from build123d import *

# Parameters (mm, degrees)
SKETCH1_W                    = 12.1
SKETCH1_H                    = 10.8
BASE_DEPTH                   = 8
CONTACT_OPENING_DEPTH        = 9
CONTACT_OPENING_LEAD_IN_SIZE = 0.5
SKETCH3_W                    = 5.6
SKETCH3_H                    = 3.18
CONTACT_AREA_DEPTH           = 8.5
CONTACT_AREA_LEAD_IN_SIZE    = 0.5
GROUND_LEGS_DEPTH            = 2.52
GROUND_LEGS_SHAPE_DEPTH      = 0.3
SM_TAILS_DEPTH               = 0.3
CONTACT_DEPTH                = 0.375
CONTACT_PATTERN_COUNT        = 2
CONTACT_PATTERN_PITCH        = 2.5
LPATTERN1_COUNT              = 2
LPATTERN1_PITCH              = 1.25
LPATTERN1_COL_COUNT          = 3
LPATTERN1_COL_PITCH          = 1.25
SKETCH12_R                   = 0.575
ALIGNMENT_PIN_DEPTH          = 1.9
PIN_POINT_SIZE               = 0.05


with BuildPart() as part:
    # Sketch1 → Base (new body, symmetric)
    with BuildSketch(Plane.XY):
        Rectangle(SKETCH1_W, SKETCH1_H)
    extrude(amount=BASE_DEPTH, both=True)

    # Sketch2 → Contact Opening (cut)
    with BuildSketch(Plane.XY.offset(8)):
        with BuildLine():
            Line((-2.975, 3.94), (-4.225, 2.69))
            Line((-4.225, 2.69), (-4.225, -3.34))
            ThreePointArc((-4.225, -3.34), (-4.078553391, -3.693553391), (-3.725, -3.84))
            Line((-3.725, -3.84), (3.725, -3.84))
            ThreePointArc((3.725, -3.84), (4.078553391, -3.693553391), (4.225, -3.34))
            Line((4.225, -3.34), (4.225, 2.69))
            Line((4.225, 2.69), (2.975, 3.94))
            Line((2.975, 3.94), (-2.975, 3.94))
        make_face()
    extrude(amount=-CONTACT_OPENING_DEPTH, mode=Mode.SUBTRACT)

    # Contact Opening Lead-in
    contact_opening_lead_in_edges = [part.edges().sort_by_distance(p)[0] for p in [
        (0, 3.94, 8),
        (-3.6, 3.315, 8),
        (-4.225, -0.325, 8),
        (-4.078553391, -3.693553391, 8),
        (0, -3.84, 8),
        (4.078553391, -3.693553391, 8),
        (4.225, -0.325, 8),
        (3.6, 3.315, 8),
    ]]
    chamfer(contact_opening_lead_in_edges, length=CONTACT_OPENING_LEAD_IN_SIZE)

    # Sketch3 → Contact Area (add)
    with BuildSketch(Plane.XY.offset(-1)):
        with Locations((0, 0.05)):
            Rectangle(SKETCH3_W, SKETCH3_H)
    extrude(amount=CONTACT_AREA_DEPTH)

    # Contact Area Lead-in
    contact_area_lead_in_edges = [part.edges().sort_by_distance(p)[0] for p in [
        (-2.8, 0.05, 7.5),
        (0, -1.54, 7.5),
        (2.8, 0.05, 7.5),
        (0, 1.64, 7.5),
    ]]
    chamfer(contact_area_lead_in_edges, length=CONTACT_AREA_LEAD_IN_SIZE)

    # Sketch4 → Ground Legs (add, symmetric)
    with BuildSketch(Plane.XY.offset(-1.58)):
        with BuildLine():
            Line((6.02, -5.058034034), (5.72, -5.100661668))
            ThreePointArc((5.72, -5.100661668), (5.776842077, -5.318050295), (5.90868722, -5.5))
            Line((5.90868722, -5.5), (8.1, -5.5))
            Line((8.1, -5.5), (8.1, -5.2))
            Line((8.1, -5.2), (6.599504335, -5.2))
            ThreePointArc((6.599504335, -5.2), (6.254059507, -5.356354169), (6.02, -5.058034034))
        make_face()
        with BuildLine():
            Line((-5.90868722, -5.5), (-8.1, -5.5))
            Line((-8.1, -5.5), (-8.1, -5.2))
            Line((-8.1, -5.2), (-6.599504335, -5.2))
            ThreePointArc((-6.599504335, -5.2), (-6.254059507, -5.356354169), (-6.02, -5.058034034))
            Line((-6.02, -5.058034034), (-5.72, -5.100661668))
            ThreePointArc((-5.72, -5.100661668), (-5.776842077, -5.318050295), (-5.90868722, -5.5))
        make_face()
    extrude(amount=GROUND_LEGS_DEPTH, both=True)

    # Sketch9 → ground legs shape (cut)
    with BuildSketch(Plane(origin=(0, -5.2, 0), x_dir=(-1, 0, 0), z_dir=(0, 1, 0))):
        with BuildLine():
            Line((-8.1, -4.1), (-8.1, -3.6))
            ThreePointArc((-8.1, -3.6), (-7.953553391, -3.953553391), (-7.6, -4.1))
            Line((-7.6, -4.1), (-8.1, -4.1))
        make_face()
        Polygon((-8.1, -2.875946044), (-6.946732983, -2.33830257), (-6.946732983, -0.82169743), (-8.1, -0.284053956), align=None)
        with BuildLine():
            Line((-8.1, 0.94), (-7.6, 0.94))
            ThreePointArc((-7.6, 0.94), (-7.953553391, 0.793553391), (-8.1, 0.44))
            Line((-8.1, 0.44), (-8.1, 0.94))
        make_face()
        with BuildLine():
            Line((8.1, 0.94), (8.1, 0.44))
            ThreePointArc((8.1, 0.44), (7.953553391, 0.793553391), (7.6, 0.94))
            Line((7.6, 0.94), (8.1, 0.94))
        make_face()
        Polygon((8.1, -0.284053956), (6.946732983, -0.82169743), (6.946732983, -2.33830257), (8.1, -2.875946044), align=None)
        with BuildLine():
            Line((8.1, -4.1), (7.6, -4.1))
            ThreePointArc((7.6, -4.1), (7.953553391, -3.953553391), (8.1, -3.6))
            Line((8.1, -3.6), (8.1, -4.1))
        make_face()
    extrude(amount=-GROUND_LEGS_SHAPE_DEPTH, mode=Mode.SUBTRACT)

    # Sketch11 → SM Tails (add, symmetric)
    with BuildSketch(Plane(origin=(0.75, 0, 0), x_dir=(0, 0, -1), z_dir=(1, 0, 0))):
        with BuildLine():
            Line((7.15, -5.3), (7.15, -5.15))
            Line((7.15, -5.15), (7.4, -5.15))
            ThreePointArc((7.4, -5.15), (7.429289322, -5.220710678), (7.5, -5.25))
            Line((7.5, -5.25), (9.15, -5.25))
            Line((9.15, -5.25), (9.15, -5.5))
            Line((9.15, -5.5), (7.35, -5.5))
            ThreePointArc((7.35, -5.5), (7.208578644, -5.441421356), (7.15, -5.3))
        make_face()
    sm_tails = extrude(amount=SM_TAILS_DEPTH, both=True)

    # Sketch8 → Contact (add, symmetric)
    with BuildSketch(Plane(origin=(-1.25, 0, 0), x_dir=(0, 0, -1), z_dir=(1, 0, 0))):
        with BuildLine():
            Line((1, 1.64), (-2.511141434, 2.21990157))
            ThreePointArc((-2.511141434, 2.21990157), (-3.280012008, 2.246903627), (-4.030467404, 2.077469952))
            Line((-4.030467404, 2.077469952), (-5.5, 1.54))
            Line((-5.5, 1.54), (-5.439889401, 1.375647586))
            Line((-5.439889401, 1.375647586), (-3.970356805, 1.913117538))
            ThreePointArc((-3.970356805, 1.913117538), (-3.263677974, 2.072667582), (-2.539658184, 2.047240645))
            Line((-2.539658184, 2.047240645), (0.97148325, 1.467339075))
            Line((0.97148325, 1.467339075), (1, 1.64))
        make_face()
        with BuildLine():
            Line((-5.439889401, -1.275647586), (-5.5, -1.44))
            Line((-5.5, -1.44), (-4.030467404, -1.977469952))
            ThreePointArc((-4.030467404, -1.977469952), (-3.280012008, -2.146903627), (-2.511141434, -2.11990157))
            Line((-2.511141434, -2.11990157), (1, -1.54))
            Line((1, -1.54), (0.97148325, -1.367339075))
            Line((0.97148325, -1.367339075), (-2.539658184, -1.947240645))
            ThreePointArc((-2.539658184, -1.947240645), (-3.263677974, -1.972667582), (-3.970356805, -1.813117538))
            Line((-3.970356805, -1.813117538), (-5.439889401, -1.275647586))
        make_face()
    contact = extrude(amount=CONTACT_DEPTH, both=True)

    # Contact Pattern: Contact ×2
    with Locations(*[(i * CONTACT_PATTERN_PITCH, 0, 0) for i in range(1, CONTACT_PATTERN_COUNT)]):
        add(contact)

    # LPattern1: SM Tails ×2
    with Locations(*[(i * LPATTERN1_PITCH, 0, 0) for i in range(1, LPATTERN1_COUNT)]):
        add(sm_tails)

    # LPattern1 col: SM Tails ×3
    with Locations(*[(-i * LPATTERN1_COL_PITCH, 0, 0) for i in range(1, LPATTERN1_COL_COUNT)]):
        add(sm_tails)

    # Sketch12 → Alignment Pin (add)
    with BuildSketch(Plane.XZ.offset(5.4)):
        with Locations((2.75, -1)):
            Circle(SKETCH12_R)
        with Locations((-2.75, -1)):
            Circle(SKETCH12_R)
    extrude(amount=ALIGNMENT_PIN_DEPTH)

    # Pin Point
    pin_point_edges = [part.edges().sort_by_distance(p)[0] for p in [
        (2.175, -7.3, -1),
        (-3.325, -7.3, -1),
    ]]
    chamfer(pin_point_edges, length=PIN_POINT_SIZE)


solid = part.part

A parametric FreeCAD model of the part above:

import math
import FreeCAD as App
import Part
import Sketcher
Q = App.Units.Quantity


def edges_at(feature, points):
    """Names of the edges that pass closest to the given points."""
    edges = feature.Shape.Edges
    near = lambda p: min(range(len(edges)), key=lambda i: edges[i].distToShape(Part.Vertex(*p))[0])
    return sorted({f"Edge{near(p) + 1}" for p in points})

doc = App.newDocument("Part")
body = doc.addObject("PartDesign::Body", "Body")

# Sketch on XY plane
sketch1 = body.newObject("Sketcher::SketchObject", "Sketch")
sketch1.AttachmentSupport = (doc.getObject("XY_Plane"), [""])
sketch1.MapMode = "FlatFace"
sketch1.addGeometry([
    Part.LineSegment(App.Vector(-6.05, 5.4, 0), App.Vector(-6.05, -5.4, 0)),
    Part.LineSegment(App.Vector(-6.05, -5.4, 0), App.Vector(6.05, -5.4, 0)),
    Part.LineSegment(App.Vector(6.05, -5.4, 0), App.Vector(6.05, 5.4, 0)),
    Part.LineSegment(App.Vector(6.05, 5.4, 0), App.Vector(-6.05, 5.4, 0)),
], False)
sketch1.addConstraint([
    Sketcher.Constraint("Coincident", 0, 2, 1, 1),
    Sketcher.Constraint("Coincident", 1, 2, 2, 1),
    Sketcher.Constraint("Coincident", 2, 2, 3, 1),
    Sketcher.Constraint("Coincident", 3, 2, 0, 1),
    Sketcher.Constraint("Vertical", 0),
    Sketcher.Constraint("Horizontal", 1),
    Sketcher.Constraint("Vertical", 2),
    Sketcher.Constraint("Horizontal", 3),
    Sketcher.Constraint("Symmetric", 0, 2, 2, 2, -1, 1),
    Sketcher.Constraint("DistanceX", 1, 1, 1, 2, Q("12.1 mm")),
    Sketcher.Constraint("DistanceY", 0, 2, 0, 1, Q("10.8 mm")),
])
pad1 = body.newObject("PartDesign::Pad", "Pad")
pad1.Profile = sketch1
pad1.Length = 16
pad1.Midplane = True

# Sketch on XY plane
sketch2 = body.newObject("Sketcher::SketchObject", "Sketch001")
sketch2.AttachmentSupport = (doc.getObject("XY_Plane"), [""])
sketch2.MapMode = "FlatFace"
sketch2.AttachmentOffset = App.Placement(App.Vector(0, 0, 8), App.Rotation())
sketch2.addGeometry([
    Part.LineSegment(App.Vector(-2.975, 3.94, 0), App.Vector(-4.225, 2.69, 0)),  # 0
    Part.LineSegment(App.Vector(-4.225, 2.69, 0), App.Vector(-4.225, -3.34, 0)),  # 1
    Part.ArcOfCircle(Part.Circle(App.Vector(-3.725, -3.34, 0), App.Vector(0, 0, 1), 0.5), math.radians(180), math.radians(270)),  # 2
    Part.LineSegment(App.Vector(-3.725, -3.84, 0), App.Vector(3.725, -3.84, 0)),  # 3
    Part.ArcOfCircle(Part.Circle(App.Vector(3.725, -3.34, 0), App.Vector(0, 0, 1), 0.5), math.radians(-90), math.radians(0)),  # 4
    Part.LineSegment(App.Vector(4.225, -3.34, 0), App.Vector(4.225, 2.69, 0)),  # 5
    Part.LineSegment(App.Vector(4.225, 2.69, 0), App.Vector(2.975, 3.94, 0)),  # 6
    Part.LineSegment(App.Vector(2.975, 3.94, 0), App.Vector(-2.975, 3.94, 0)),  # 7
], False)
sketch2.addConstraint([
    Sketcher.Constraint("Coincident", 0, 2, 1, 1),
    Sketcher.Constraint("Tangent", 1, 2, 2, 1),
    Sketcher.Constraint("Tangent", 2, 2, 3, 1),
    Sketcher.Constraint("Tangent", 3, 2, 4, 1),
    Sketcher.Constraint("Tangent", 4, 2, 5, 1),
    Sketcher.Constraint("Coincident", 5, 2, 6, 1),
    Sketcher.Constraint("Coincident", 6, 2, 7, 1),
    Sketcher.Constraint("Coincident", 7, 2, 0, 1),
    Sketcher.Constraint("Vertical", 1),
    Sketcher.Constraint("Horizontal", 3),
    Sketcher.Constraint("Vertical", 5),
    Sketcher.Constraint("Horizontal", 7),
    Sketcher.Constraint("Equal", 2, 4),
    Sketcher.Constraint("Symmetric", 0, 2, 5, 2, -2),
    Sketcher.Constraint("Perpendicular", 0, 6),
    Sketcher.Constraint("Equal", 0, 6),
    Sketcher.Constraint("Radius", 2, Q("0.5 mm")),
    Sketcher.Constraint("DistanceX", 3, 1, 3, 2, Q("7.45 mm")),
    Sketcher.Constraint("DistanceX", 7, 2, 7, 1, Q("5.95 mm")),
    Sketcher.Constraint("DistanceY", 1, 2, 1, 1, Q("6.03 mm")),
    Sketcher.Constraint("DistanceY", 2, 3, -1, 1, Q("3.34 mm")),
])
pocket1 = body.newObject("PartDesign::Pocket", "Pocket")
pocket1.Profile = sketch2
pocket1.Length = 9
doc.recompute()

chamfer = body.newObject("PartDesign::Chamfer", "Chamfer")
chamfer.Base = (pocket1, edges_at(pocket1, [
    (0, 3.94, 8),
    (-3.6, 3.315, 8),
    (-4.225, -0.325, 8),
    (-4.079, -3.694, 8),
    (0, -3.84, 8),
    (4.079, -3.694, 8),
    (4.225, -0.325, 8),
    (3.6, 3.315, 8),
]))
chamfer.Size = 0.5

# Sketch on XY plane
sketch3 = body.newObject("Sketcher::SketchObject", "Sketch002")
sketch3.AttachmentSupport = (doc.getObject("XY_Plane"), [""])
sketch3.MapMode = "FlatFace"
sketch3.AttachmentOffset = App.Placement(App.Vector(0, 0, -1), App.Rotation())
sketch3.addGeometry([
    Part.LineSegment(App.Vector(-2.8, 1.64, 0), App.Vector(-2.8, -1.54, 0)),
    Part.LineSegment(App.Vector(-2.8, -1.54, 0), App.Vector(2.8, -1.54, 0)),
    Part.LineSegment(App.Vector(2.8, -1.54, 0), App.Vector(2.8, 1.64, 0)),
    Part.LineSegment(App.Vector(2.8, 1.64, 0), App.Vector(-2.8, 1.64, 0)),
], False)
sketch3.addConstraint([
    Sketcher.Constraint("Coincident", 0, 2, 1, 1),
    Sketcher.Constraint("Coincident", 1, 2, 2, 1),
    Sketcher.Constraint("Coincident", 2, 2, 3, 1),
    Sketcher.Constraint("Coincident", 3, 2, 0, 1),
    Sketcher.Constraint("Vertical", 0),
    Sketcher.Constraint("Horizontal", 1),
    Sketcher.Constraint("Vertical", 2),
    Sketcher.Constraint("Horizontal", 3),
    Sketcher.Constraint("DistanceX", 1, 1, 1, 2, Q("5.6 mm")),
    Sketcher.Constraint("DistanceY", 0, 2, 0, 1, Q("3.18 mm")),
    Sketcher.Constraint("DistanceX", 0, 2, -1, 1, Q("2.8 mm")),
    Sketcher.Constraint("DistanceY", 0, 2, -1, 1, Q("1.54 mm")),
])
pad2 = body.newObject("PartDesign::Pad", "Pad001")
pad2.Profile = sketch3
pad2.Length = 8.5
doc.recompute()

chamfer2 = body.newObject("PartDesign::Chamfer", "Chamfer001")
chamfer2.Base = (pad2, edges_at(pad2, [
    (-2.8, 0.05, 7.5),
    (0, -1.54, 7.5),
    (2.8, 0.05, 7.5),
    (0, 1.64, 7.5),
]))
chamfer2.Size = 0.5

# Sketch on XY plane
sketch4 = body.newObject("Sketcher::SketchObject", "Sketch003")
sketch4.AttachmentSupport = (doc.getObject("XY_Plane"), [""])
sketch4.MapMode = "FlatFace"
sketch4.AttachmentOffset = App.Placement(App.Vector(0, 0, -1.58), App.Rotation())
sketch4.addGeometry([
    Part.LineSegment(App.Vector(6.02, -5.058034, 0), App.Vector(5.72, -5.100662, 0)),  # 0
    Part.ArcOfCircle(Part.Circle(App.Vector(6.327141, -5.058034, 0), App.Vector(0, 0, 1), 0.608636), math.radians(-175.983832), math.radians(-133.434733)),  # 1
    Part.LineSegment(App.Vector(5.908687, -5.5, 0), App.Vector(8.1, -5.5, 0)),  # 2
    Part.LineSegment(App.Vector(8.1, -5.5, 0), App.Vector(8.1, -5.2, 0)),  # 3
    Part.LineSegment(App.Vector(8.1, -5.2, 0), App.Vector(6.599504, -5.2, 0)),  # 4
    Part.ArcOfCircle(Part.Circle(App.Vector(6.327141, -5.058034, 0), App.Vector(0, 0, 1), 0.307141), math.radians(180), math.radians(332.469749)),  # 5
    Part.LineSegment(App.Vector(-8.1, -5.5, 0), App.Vector(-5.908687, -5.5, 0)),  # 6
    Part.ArcOfCircle(Part.Circle(App.Vector(-6.327141, -5.058034, 0), App.Vector(0, 0, 1), 0.608636), math.radians(-46.565267), math.radians(-4.016168)),  # 7
    Part.LineSegment(App.Vector(-5.72, -5.100662, 0), App.Vector(-6.02, -5.058034, 0)),  # 8
    Part.ArcOfCircle(Part.Circle(App.Vector(-6.327141, -5.058034, 0), App.Vector(0, 0, 1), 0.307141), math.radians(-152.469749), math.radians(0)),  # 9
    Part.LineSegment(App.Vector(-6.599504, -5.2, 0), App.Vector(-8.1, -5.2, 0)),  # 10
    Part.LineSegment(App.Vector(-8.1, -5.2, 0), App.Vector(-8.1, -5.5, 0)),  # 11
], False)
sketch4.addConstraint([
    Sketcher.Constraint("Coincident", 0, 2, 1, 1),
    Sketcher.Constraint("Coincident", 1, 2, 2, 1),
    Sketcher.Constraint("Coincident", 2, 2, 3, 1),
    Sketcher.Constraint("Coincident", 3, 2, 4, 1),
    Sketcher.Constraint("Coincident", 4, 2, 5, 2),
    Sketcher.Constraint("Coincident", 5, 1, 0, 1),
    Sketcher.Constraint("Coincident", 6, 2, 7, 1),
    Sketcher.Constraint("Coincident", 7, 2, 8, 1),
    Sketcher.Constraint("Coincident", 8, 2, 9, 2),
    Sketcher.Constraint("Coincident", 9, 1, 10, 1),
    Sketcher.Constraint("Coincident", 10, 2, 11, 1),
    Sketcher.Constraint("Coincident", 11, 2, 6, 1),
    Sketcher.Constraint("Horizontal", 2),
    Sketcher.Constraint("Vertical", 3),
    Sketcher.Constraint("Horizontal", 4),
    Sketcher.Constraint("Horizontal", 6),
    Sketcher.Constraint("Horizontal", 10),
    Sketcher.Constraint("Vertical", 11),
    Sketcher.Constraint("Coincident", 5, 3, 1, 3),
    Sketcher.Constraint("Coincident", 9, 3, 7, 3),
    Sketcher.Constraint("Equal", 1, 7),
    Sketcher.Constraint("Equal", 5, 9),
    Sketcher.Constraint("Symmetric", 1, 3, 7, 3, -2),
    Sketcher.Constraint("Symmetric", 3, 2, 10, 2, -2),
    Sketcher.Constraint("Horizontal", 9, 3, 5, 1),
    Sketcher.Constraint("Horizontal", 2, 2, 6, 2),
    Sketcher.Constraint("Horizontal", 0, 2, 7, 2),
    Sketcher.Constraint("Horizontal", 5, 1, 8, 2),
    Sketcher.Constraint("DistanceY", 3, 1, 3, 2, Q("0.3 mm")),
    Sketcher.Constraint("DistanceY", 1, 2, -1, 1, Q("5.5 mm")),
    Sketcher.Constraint("DistanceX", -1, 1, 2, 2, Q("8.1 mm")),
    Sketcher.Constraint("DistanceX", 0, 2, 5, 1, Q("0.3 mm")),
    Sketcher.Constraint("DistanceX", -1, 1, 0, 2, Q("5.72 mm")),
    Sketcher.Constraint("Radius", 5, Q("0.307141 mm")),
    Sketcher.Constraint("Radius", 1, Q("0.608636 mm")),
    Sketcher.Constraint("DistanceX", 2, 1, 2, 2, Q("2.191313 mm")),
])
pad3 = body.newObject("PartDesign::Pad", "Pad002")
pad3.Profile = sketch4
pad3.Length = 5.04
pad3.Midplane = True

# Sketch on XZ plane
sketch5 = body.newObject("Sketcher::SketchObject", "Sketch004")
sketch5.AttachmentSupport = (doc.getObject("XZ_Plane"), [""])
sketch5.MapMode = "FlatFace"
sketch5.AttachmentOffset = App.Placement(App.Vector(0, 0, 5.2), App.Rotation())
sketch5.addGeometry([
    Part.LineSegment(App.Vector(8.1, -3.6, 0), App.Vector(8.1, -4.1, 0)),  # 0
    Part.LineSegment(App.Vector(8.1, -4.1, 0), App.Vector(7.6, -4.1, 0)),  # 1
    Part.ArcOfCircle(Part.Circle(App.Vector(7.6, -3.6, 0), App.Vector(0, 0, 1), 0.5), math.radians(-90), math.radians(0)),  # 2
    Part.LineSegment(App.Vector(8.1, -2.875946, 0), App.Vector(6.946733, -2.338303, 0)),  # 3
    Part.LineSegment(App.Vector(6.946733, -2.338303, 0), App.Vector(6.946733, -0.821697, 0)),  # 4
    Part.LineSegment(App.Vector(6.946733, -0.821697, 0), App.Vector(8.1, -0.284054, 0)),  # 5
    Part.LineSegment(App.Vector(8.1, -0.284054, 0), App.Vector(8.1, -2.875946, 0)),  # 6
    Part.LineSegment(App.Vector(7.6, 0.94, 0), App.Vector(8.1, 0.94, 0)),  # 7
    Part.LineSegment(App.Vector(8.1, 0.94, 0), App.Vector(8.1, 0.44, 0)),  # 8
    Part.ArcOfCircle(Part.Circle(App.Vector(7.6, 0.44, 0), App.Vector(0, 0, 1), 0.5), math.radians(0), math.radians(90)),  # 9
    Part.LineSegment(App.Vector(-8.1, 0.44, 0), App.Vector(-8.1, 0.94, 0)),  # 10
    Part.LineSegment(App.Vector(-8.1, 0.94, 0), App.Vector(-7.6, 0.94, 0)),  # 11
    Part.ArcOfCircle(Part.Circle(App.Vector(-7.6, 0.44, 0), App.Vector(0, 0, 1), 0.5), math.radians(90), math.radians(180)),  # 12
    Part.LineSegment(App.Vector(-8.1, -0.284054, 0), App.Vector(-6.946733, -0.821697, 0)),  # 13
    Part.LineSegment(App.Vector(-6.946733, -0.821697, 0), App.Vector(-6.946733, -2.338303, 0)),  # 14
    Part.LineSegment(App.Vector(-6.946733, -2.338303, 0), App.Vector(-8.1, -2.875946, 0)),  # 15
    Part.LineSegment(App.Vector(-8.1, -2.875946, 0), App.Vector(-8.1, -0.284054, 0)),  # 16
    Part.LineSegment(App.Vector(-7.6, -4.1, 0), App.Vector(-8.1, -4.1, 0)),  # 17
    Part.LineSegment(App.Vector(-8.1, -4.1, 0), App.Vector(-8.1, -3.6, 0)),  # 18
    Part.ArcOfCircle(Part.Circle(App.Vector(-7.6, -3.6, 0), App.Vector(0, 0, 1), 0.5), math.radians(180), math.radians(270)),  # 19
], False)
sketch5.addConstraint([
    Sketcher.Constraint("Coincident", 0, 2, 1, 1),
    Sketcher.Constraint("Tangent", 1, 2, 2, 1),
    Sketcher.Constraint("Tangent", 2, 2, 0, 1),
    Sketcher.Constraint("Coincident", 3, 2, 4, 1),
    Sketcher.Constraint("Coincident", 4, 2, 5, 1),
    Sketcher.Constraint("Coincident", 5, 2, 6, 1),
    Sketcher.Constraint("Coincident", 6, 2, 3, 1),
    Sketcher.Constraint("Coincident", 7, 2, 8, 1),
    Sketcher.Constraint("Tangent", 8, 2, 9, 1),
    Sketcher.Constraint("Tangent", 9, 2, 7, 1),
    Sketcher.Constraint("Coincident", 10, 2, 11, 1),
    Sketcher.Constraint("Tangent", 11, 2, 12, 1),
    Sketcher.Constraint("Tangent", 12, 2, 10, 1),
    Sketcher.Constraint("Coincident", 13, 2, 14, 1),
    Sketcher.Constraint("Coincident", 14, 2, 15, 1),
    Sketcher.Constraint("Coincident", 15, 2, 16, 1),
    Sketcher.Constraint("Coincident", 16, 2, 13, 1),
    Sketcher.Constraint("Coincident", 17, 2, 18, 1),
    Sketcher.Constraint("Tangent", 18, 2, 19, 1),
    Sketcher.Constraint("Tangent", 19, 2, 17, 1),
    Sketcher.Constraint("Vertical", 0),
    Sketcher.Constraint("Horizontal", 1),
    Sketcher.Constraint("Vertical", 4),
    Sketcher.Constraint("Vertical", 6),
    Sketcher.Constraint("Horizontal", 7),
    Sketcher.Constraint("Vertical", 8),
    Sketcher.Constraint("Vertical", 10),
    Sketcher.Constraint("Horizontal", 11),
    Sketcher.Constraint("Vertical", 14),
    Sketcher.Constraint("Vertical", 16),
    Sketcher.Constraint("Horizontal", 17),
    Sketcher.Constraint("Vertical", 18),
    Sketcher.Constraint("Equal", 2, 9),
    Sketcher.Constraint("Equal", 9, 12),
    Sketcher.Constraint("Equal", 12, 19),
    Sketcher.Constraint("Symmetric", 9, 3, 12, 3, -2),
    Sketcher.Constraint("Symmetric", 2, 3, 19, 3, -2),
    Sketcher.Constraint("Symmetric", 4, 2, 13, 2, -2),
    Sketcher.Constraint("Symmetric", 6, 2, 15, 2, -2),
    Sketcher.Constraint("Parallel", 3, 13),
    Sketcher.Constraint("Parallel", 5, 15),
    Sketcher.Constraint("Horizontal", 3, 2, 14, 2),
    Sketcher.Constraint("Vertical", 2, 3, 9, 3),
    Sketcher.Constraint("Vertical", 2, 2, 5, 2),
    Sketcher.Constraint("Radius", 2, Q("0.5 mm")),
    Sketcher.Constraint("DistanceX", -1, 1, 2, 3, Q("7.6 mm")),
    Sketcher.Constraint("DistanceY", 2, 3, -1, 1, Q("3.6 mm")),
    Sketcher.Constraint("DistanceY", -1, 1, 9, 3, Q("0.44 mm")),
    Sketcher.Constraint("DistanceY", 4, 1, 4, 2, Q("1.516605 mm")),
    Sketcher.Constraint("DistanceY", 6, 2, 6, 1, Q("2.591892 mm")),
    Sketcher.Constraint("Distance", 3, Q("1.272433 mm")),
    Sketcher.Constraint("DistanceY", 3, 2, -1, 1, Q("2.338303 mm")),
])
pocket2 = body.newObject("PartDesign::Pocket", "Pocket001")
pocket2.Profile = sketch5
pocket2.Length = 0.3
pocket2.Reversed = True

# Sketch on YZ plane
sketch6 = body.newObject("Sketcher::SketchObject", "Sketch005")
sketch6.AttachmentSupport = (doc.getObject("YZ_Plane"), [""])
sketch6.MapMode = "FlatFace"
sketch6.AttachmentOffset = App.Placement(App.Vector(0, 0, 0.75), App.Rotation())
sketch6.addGeometry([
    Part.LineSegment(App.Vector(-5.15, -7.15, 0), App.Vector(-5.3, -7.15, 0)),  # 0
    Part.ArcOfCircle(Part.Circle(App.Vector(-5.3, -7.35, 0), App.Vector(0, 0, 1), 0.2), math.radians(90), math.radians(180)),  # 1
    Part.LineSegment(App.Vector(-5.5, -7.35, 0), App.Vector(-5.5, -9.15, 0)),  # 2
    Part.LineSegment(App.Vector(-5.5, -9.15, 0), App.Vector(-5.25, -9.15, 0)),  # 3
    Part.LineSegment(App.Vector(-5.25, -9.15, 0), App.Vector(-5.25, -7.5, 0)),  # 4
    Part.ArcOfCircle(Part.Circle(App.Vector(-5.15, -7.5, 0), App.Vector(0, 0, 1), 0.1), math.radians(90), math.radians(180)),  # 5
    Part.LineSegment(App.Vector(-5.15, -7.4, 0), App.Vector(-5.15, -7.15, 0)),  # 6
], False)
sketch6.addConstraint([
    Sketcher.Constraint("Tangent", 0, 2, 1, 1),
    Sketcher.Constraint("Tangent", 1, 2, 2, 1),
    Sketcher.Constraint("Coincident", 2, 2, 3, 1),
    Sketcher.Constraint("Coincident", 3, 2, 4, 1),
    Sketcher.Constraint("Tangent", 4, 2, 5, 2),
    Sketcher.Constraint("Coincident", 5, 1, 6, 1),
    Sketcher.Constraint("Coincident", 6, 2, 0, 1),
    Sketcher.Constraint("Horizontal", 0),
    Sketcher.Constraint("Vertical", 2),
    Sketcher.Constraint("Horizontal", 3),
    Sketcher.Constraint("Vertical", 4),
    Sketcher.Constraint("Vertical", 6),
    Sketcher.Constraint("Equal", 3, 6),
    Sketcher.Constraint("Radius", 1, Q("0.2 mm")),
    Sketcher.Constraint("Radius", 5, Q("0.1 mm")),
    Sketcher.Constraint("DistanceY", 2, 2, 2, 1, Q("1.8 mm")),
    Sketcher.Constraint("DistanceX", 0, 2, 0, 1, Q("0.15 mm")),
    Sketcher.Constraint("DistanceX", 3, 1, 3, 2, Q("0.25 mm")),
    Sketcher.Constraint("DistanceX", 1, 3, -1, 1, Q("5.3 mm")),
    Sketcher.Constraint("DistanceY", 5, 3, -1, 1, Q("7.5 mm")),
])
pad4 = body.newObject("PartDesign::Pad", "Pad003")
pad4.Profile = sketch6
pad4.Length = 0.6
pad4.Midplane = True

# Sketch on YZ plane
sketch7 = body.newObject("Sketcher::SketchObject", "Sketch006")
sketch7.AttachmentSupport = (doc.getObject("YZ_Plane"), [""])
sketch7.MapMode = "FlatFace"
sketch7.AttachmentOffset = App.Placement(App.Vector(0, 0, -1.25), App.Rotation())
sketch7.addGeometry([
    Part.LineSegment(App.Vector(1.64, -1, 0), App.Vector(2.219902, 2.511141, 0)),  # 0
    Part.ArcOfCircle(Part.Circle(App.Vector(-0.74, 3, 0), App.Vector(0, 0, 1), 3), math.radians(-9.378332), math.radians(20.089594)),  # 1
    Part.LineSegment(App.Vector(2.07747, 4.030467, 0), App.Vector(1.54, 5.5, 0)),  # 2
    Part.LineSegment(App.Vector(1.54, 5.5, 0), App.Vector(1.375648, 5.439889, 0)),  # 3
    Part.LineSegment(App.Vector(1.375648, 5.439889, 0), App.Vector(1.913118, 3.970357, 0)),  # 4
    Part.ArcOfCircle(Part.Circle(App.Vector(-0.74, 3, 0), App.Vector(0, 0, 1), 2.825), math.radians(-9.378332), math.radians(20.089594)),  # 5
    Part.LineSegment(App.Vector(2.047241, 2.539658, 0), App.Vector(1.467339, -0.971483, 0)),  # 6
    Part.LineSegment(App.Vector(1.467339, -0.971483, 0), App.Vector(1.64, -1, 0)),  # 7
    Part.LineSegment(App.Vector(-1.275648, 5.439889, 0), App.Vector(-1.44, 5.5, 0)),  # 8
    Part.LineSegment(App.Vector(-1.44, 5.5, 0), App.Vector(-1.97747, 4.030467, 0)),  # 9
    Part.ArcOfCircle(Part.Circle(App.Vector(0.84, 3, 0), App.Vector(0, 0, 1), 3), math.radians(159.910406), math.radians(189.378332)),  # 10
    Part.LineSegment(App.Vector(-2.119902, 2.511141, 0), App.Vector(-1.54, -1, 0)),  # 11
    Part.LineSegment(App.Vector(-1.54, -1, 0), App.Vector(-1.367339, -0.971483, 0)),  # 12
    Part.LineSegment(App.Vector(-1.367339, -0.971483, 0), App.Vector(-1.947241, 2.539658, 0)),  # 13
    Part.ArcOfCircle(Part.Circle(App.Vector(0.84, 3, 0), App.Vector(0, 0, 1), 2.825), math.radians(159.910406), math.radians(189.378332)),  # 14
    Part.LineSegment(App.Vector(-1.813118, 3.970357, 0), App.Vector(-1.275648, 5.439889, 0)),  # 15
], False)
sketch7.addConstraint([
    Sketcher.Constraint("Tangent", 0, 2, 1, 1),
    Sketcher.Constraint("Tangent", 1, 2, 2, 1),
    Sketcher.Constraint("Coincident", 2, 2, 3, 1),
    Sketcher.Constraint("Coincident", 3, 2, 4, 1),
    Sketcher.Constraint("Tangent", 4, 2, 5, 2),
    Sketcher.Constraint("Tangent", 5, 1, 6, 1),
    Sketcher.Constraint("Coincident", 6, 2, 7, 1),
    Sketcher.Constraint("Coincident", 7, 2, 0, 1),
    Sketcher.Constraint("Coincident", 8, 2, 9, 1),
    Sketcher.Constraint("Tangent", 9, 2, 10, 1),
    Sketcher.Constraint("Tangent", 10, 2, 11, 1),
    Sketcher.Constraint("Coincident", 11, 2, 12, 1),
    Sketcher.Constraint("Coincident", 12, 2, 13, 1),
    Sketcher.Constraint("Tangent", 13, 2, 14, 2),
    Sketcher.Constraint("Tangent", 14, 1, 15, 1),
    Sketcher.Constraint("Coincident", 15, 2, 8, 1),
    Sketcher.Constraint("Coincident", 5, 3, 1, 3),
    Sketcher.Constraint("Coincident", 14, 3, 10, 3),
    Sketcher.Constraint("Equal", 1, 10),
    Sketcher.Constraint("Equal", 5, 14),
    Sketcher.Constraint("Perpendicular", 2, 3),
    Sketcher.Constraint("Perpendicular", 3, 4),
    Sketcher.Constraint("Parallel", 0, 6),
    Sketcher.Constraint("Perpendicular", 6, 7),
    Sketcher.Constraint("Perpendicular", 8, 9),
    Sketcher.Constraint("Perpendicular", 11, 12),
    Sketcher.Constraint("Perpendicular", 12, 13),
    Sketcher.Constraint("Parallel", 9, 15),
    Sketcher.Constraint("Horizontal", 5, 3, 10, 3),
    Sketcher.Constraint("Horizontal", 2, 2, 8, 2),
    Sketcher.Constraint("Horizontal", 1, 2, 9, 2),
    Sketcher.Constraint("Horizontal", 0, 2, 10, 2),
    Sketcher.Constraint("Horizontal", 7, 2, 11, 2),
    Sketcher.Constraint("Radius", 1, Q("3 mm")),
    Sketcher.Constraint("DistanceY", -1, 1, 1, 3, Q("3 mm")),
    Sketcher.Constraint("DistanceY", 7, 2, -1, 1, Q("1 mm")),
    Sketcher.Constraint("Radius", 5, Q("2.825 mm")),
    Sketcher.Constraint("DistanceY", -1, 1, 2, 2, Q("5.5 mm")),
    Sketcher.Constraint("DistanceX", 10, 3, 2, 2, Q("0.7 mm")),
    Sketcher.Constraint("DistanceX", 10, 3, 7, 2, Q("0.8 mm")),
    Sketcher.Constraint("DistanceX", 1, 3, -1, 1, Q("0.74 mm")),
    Sketcher.Constraint("DistanceX", -1, 1, 10, 3, Q("0.84 mm")),
])
pad5 = body.newObject("PartDesign::Pad", "Pad004")
pad5.Profile = sketch7
pad5.Length = 0.75
pad5.Midplane = True
doc.recompute()

linearpattern = body.newObject("PartDesign::LinearPattern", "LinearPattern")
linearpattern.Originals = [pad5]
linearpattern.Direction = (doc.getObject("X_Axis"), [""])
linearpattern.Mode = "offset"
linearpattern.Offset = 2.5
linearpattern.Occurrences = 2
body.Tip = linearpattern
doc.recompute()

linearpattern2 = body.newObject("PartDesign::LinearPattern", "LinearPattern001")
linearpattern2.Originals = [pad4]
linearpattern2.Direction = (doc.getObject("X_Axis"), [""])
linearpattern2.Mode = "offset"
linearpattern2.Offset = 1.25
linearpattern2.Occurrences = 2
body.Tip = linearpattern2
doc.recompute()

linearpattern3 = body.newObject("PartDesign::LinearPattern", "LinearPattern002")
linearpattern3.Originals = [pad4]
linearpattern3.Direction = (doc.getObject("X_Axis"), [""])
linearpattern3.Mode = "offset"
linearpattern3.Offset = 1.25
linearpattern3.Occurrences = 3
linearpattern3.Reversed = True
body.Tip = linearpattern3

# Sketch on XZ plane
sketch8 = body.newObject("Sketcher::SketchObject", "Sketch007")
sketch8.AttachmentSupport = (doc.getObject("XZ_Plane"), [""])
sketch8.MapMode = "FlatFace"
sketch8.AttachmentOffset = App.Placement(App.Vector(0, 0, 5.4), App.Rotation())
sketch8.addGeometry([
    Part.Circle(App.Vector(2.75, -1, 0), App.Vector(0, 0, 1), 0.575),
    Part.Circle(App.Vector(-2.75, -1, 0), App.Vector(0, 0, 1), 0.575),
], False)
sketch8.addConstraint([
    Sketcher.Constraint("Equal", 0, 1),
    Sketcher.Constraint("Symmetric", 0, 3, 1, 3, -2),
    Sketcher.Constraint("Diameter", 0, Q("1.15 mm")),
    Sketcher.Constraint("DistanceY", 0, 3, -1, 1, Q("1 mm")),
    Sketcher.Constraint("DistanceX", 1, 3, 0, 3, Q("5.5 mm")),
])
pad6 = body.newObject("PartDesign::Pad", "Pad005")
pad6.Profile = sketch8
pad6.Length = 1.9
doc.recompute()

chamfer3 = body.newObject("PartDesign::Chamfer", "Chamfer002")
chamfer3.Base = (pad6, edges_at(pad6, [(2.175, -7.3, -1), (-3.325, -7.3, -1)]))
chamfer3.Size = 0.05

doc.recompute()
